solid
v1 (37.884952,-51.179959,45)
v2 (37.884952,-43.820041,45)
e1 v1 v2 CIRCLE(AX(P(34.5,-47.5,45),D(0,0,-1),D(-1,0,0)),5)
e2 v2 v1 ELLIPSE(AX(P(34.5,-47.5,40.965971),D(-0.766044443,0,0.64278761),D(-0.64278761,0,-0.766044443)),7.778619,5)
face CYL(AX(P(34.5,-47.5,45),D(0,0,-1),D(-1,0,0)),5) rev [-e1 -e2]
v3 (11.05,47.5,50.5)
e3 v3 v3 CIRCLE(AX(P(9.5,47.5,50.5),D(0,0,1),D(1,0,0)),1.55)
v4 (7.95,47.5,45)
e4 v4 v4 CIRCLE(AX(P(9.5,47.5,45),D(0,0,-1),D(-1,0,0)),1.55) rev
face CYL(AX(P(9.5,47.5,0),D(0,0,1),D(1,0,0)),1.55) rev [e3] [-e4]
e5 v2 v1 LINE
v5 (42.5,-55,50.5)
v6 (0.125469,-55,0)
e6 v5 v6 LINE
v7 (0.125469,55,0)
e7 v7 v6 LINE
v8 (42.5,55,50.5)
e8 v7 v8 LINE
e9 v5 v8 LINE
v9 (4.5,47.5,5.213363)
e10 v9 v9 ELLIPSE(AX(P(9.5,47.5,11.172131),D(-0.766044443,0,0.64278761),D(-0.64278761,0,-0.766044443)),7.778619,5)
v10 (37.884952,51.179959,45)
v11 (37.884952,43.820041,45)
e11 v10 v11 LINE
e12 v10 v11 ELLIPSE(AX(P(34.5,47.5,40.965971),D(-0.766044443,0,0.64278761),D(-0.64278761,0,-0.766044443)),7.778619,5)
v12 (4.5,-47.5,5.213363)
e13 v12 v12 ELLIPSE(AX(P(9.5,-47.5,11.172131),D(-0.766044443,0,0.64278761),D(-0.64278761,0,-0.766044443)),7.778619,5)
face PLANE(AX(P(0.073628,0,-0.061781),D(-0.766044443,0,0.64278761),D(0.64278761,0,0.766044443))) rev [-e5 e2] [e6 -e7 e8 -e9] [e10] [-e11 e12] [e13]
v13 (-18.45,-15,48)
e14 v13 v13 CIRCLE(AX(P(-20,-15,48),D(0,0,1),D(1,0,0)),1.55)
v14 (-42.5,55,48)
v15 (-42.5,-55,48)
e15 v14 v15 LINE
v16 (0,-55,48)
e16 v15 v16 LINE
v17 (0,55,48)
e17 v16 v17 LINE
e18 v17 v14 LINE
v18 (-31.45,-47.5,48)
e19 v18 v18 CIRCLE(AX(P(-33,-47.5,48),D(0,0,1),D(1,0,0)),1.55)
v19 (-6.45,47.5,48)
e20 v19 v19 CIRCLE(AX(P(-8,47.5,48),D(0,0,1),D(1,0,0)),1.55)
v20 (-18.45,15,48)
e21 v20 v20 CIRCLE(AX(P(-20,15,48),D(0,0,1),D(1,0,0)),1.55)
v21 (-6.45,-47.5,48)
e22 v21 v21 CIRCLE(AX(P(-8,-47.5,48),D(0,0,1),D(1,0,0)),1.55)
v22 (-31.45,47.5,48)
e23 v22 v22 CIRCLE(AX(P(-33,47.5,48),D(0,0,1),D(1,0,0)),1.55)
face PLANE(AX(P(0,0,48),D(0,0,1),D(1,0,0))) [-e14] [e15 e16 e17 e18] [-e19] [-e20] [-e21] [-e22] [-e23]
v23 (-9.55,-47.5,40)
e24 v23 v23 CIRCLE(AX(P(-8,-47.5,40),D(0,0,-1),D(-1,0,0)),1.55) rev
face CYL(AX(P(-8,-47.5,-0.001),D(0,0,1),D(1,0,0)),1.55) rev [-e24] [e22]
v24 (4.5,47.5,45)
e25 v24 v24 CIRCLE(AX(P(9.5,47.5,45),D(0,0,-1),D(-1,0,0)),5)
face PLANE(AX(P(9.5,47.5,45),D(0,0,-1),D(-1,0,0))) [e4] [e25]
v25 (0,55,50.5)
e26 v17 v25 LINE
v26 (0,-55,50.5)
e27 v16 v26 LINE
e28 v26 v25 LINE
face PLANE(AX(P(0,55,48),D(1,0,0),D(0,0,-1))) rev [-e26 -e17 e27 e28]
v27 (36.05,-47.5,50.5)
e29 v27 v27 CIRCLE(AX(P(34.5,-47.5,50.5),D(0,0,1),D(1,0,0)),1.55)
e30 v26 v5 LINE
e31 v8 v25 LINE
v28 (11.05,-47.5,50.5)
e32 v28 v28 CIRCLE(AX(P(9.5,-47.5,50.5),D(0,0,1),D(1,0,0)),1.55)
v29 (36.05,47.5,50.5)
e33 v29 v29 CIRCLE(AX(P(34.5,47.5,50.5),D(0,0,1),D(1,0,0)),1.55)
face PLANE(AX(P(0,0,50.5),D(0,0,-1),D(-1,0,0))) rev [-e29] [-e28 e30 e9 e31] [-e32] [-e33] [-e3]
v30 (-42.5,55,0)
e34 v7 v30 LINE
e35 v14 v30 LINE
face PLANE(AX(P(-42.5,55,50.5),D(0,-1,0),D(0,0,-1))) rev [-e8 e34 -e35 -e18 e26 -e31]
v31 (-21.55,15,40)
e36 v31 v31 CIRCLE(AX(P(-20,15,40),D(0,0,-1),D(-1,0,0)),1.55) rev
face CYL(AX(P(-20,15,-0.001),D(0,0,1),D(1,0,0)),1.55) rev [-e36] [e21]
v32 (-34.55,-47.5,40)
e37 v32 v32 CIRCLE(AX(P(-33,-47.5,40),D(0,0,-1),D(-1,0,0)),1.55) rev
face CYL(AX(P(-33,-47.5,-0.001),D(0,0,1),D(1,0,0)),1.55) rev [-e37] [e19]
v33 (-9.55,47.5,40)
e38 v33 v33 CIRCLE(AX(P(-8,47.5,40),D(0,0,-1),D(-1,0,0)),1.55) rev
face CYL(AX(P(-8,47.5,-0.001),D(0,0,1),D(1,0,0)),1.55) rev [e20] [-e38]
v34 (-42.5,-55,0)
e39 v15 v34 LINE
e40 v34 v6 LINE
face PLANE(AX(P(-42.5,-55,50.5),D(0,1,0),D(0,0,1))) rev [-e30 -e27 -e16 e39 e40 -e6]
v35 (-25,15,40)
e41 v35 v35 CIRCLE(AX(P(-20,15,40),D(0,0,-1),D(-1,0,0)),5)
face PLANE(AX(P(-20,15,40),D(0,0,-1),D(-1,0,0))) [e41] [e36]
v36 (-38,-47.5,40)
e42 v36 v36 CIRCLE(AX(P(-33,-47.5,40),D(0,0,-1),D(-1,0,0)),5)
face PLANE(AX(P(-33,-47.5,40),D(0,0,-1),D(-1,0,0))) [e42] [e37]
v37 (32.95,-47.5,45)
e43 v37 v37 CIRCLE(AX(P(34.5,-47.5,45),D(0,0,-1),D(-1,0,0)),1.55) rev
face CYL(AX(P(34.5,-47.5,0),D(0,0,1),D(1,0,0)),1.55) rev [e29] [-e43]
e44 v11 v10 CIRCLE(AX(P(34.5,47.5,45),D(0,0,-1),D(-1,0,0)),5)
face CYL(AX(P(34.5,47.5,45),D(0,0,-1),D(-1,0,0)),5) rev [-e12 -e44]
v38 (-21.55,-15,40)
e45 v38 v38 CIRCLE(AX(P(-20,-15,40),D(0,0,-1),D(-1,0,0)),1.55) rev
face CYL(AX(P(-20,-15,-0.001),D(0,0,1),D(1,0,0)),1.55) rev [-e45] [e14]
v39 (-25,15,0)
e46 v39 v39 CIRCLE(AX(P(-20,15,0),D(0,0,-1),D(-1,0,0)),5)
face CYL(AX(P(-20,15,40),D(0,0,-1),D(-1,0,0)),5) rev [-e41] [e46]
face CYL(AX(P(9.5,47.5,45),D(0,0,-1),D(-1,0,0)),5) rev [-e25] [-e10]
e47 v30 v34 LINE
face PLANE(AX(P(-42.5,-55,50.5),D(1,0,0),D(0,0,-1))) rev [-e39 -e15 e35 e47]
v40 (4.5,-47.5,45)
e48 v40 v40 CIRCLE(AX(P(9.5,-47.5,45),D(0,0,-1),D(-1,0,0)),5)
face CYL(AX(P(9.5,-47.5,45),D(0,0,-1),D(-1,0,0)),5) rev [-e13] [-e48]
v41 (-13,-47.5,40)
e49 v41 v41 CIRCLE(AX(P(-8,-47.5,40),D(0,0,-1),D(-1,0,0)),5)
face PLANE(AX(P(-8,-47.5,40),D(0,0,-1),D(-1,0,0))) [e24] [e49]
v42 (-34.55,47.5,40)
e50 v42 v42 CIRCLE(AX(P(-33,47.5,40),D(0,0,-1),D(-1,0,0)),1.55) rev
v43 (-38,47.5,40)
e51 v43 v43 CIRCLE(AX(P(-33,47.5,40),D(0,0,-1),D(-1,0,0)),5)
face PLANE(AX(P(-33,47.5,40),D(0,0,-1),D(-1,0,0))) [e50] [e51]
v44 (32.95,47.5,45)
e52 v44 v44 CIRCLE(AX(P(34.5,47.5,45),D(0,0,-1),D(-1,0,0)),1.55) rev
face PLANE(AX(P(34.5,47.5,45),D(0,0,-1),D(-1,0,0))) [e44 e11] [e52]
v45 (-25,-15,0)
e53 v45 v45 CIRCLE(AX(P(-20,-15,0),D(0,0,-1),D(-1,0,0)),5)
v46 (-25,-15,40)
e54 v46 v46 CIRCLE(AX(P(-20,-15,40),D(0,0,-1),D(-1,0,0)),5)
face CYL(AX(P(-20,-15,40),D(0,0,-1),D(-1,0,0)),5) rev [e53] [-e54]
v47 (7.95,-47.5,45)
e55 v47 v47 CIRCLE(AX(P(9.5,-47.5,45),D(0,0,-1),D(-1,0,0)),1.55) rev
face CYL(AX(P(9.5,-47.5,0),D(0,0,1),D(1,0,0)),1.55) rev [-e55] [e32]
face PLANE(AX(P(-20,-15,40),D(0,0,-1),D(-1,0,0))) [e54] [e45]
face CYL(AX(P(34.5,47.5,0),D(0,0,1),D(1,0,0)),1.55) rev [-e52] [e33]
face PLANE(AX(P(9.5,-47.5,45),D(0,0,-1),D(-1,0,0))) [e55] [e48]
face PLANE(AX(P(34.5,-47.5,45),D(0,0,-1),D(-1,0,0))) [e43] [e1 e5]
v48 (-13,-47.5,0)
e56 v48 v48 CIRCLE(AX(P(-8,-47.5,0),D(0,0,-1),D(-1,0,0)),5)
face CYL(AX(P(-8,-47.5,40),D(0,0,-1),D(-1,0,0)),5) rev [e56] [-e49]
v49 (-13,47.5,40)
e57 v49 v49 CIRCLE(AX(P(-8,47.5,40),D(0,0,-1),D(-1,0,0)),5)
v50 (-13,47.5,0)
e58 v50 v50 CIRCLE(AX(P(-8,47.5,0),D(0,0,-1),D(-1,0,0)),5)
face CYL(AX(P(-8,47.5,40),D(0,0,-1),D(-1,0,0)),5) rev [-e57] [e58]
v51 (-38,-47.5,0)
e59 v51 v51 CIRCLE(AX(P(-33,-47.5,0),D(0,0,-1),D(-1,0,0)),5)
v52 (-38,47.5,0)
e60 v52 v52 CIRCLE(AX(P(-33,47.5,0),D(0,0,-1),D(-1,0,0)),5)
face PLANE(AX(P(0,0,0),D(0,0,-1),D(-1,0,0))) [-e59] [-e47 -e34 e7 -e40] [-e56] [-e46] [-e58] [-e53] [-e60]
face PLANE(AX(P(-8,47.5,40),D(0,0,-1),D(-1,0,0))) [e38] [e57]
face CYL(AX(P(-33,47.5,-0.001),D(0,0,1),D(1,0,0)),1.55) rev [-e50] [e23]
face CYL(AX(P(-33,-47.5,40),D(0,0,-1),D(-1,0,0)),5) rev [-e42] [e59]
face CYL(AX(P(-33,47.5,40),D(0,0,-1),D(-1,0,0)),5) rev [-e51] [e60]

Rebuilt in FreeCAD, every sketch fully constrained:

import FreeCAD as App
import Part
import Sketcher
Q = App.Units.Quantity

doc = App.newDocument("Part")
params = doc.addObject("Spreadsheet::Sheet", "Params")
for row, (alias, value) in enumerate([
    ("sketch1_width", "85 mm"),
    ("sketch1_height", "110 mm"),
    ("pad1_length", "50.5 mm"),
    ("sketch2_height", "110 mm"),
    ("sketch2_width", "42.5 mm"),
    ("pocket1_length", "2.5 mm"),
    ("sketch3_width", "130 mm"),
    ("pocket2_length", "32.460774 mm"),
    ("sketch4_diameter", "3.1 mm"),
    ("sketch5_diameter", "3.1 mm"),
    ("sketch6_diameter", "3.1 mm"),
    ("sketch7_diameter", "3.1 mm"),
    ("sketch8_diameter", "3.1 mm"),
    ("sketch9_diameter", "3.1 mm"),
    ("sketch10_diameter", "3.1 mm"),
    ("sketch11_diameter", "10 mm"),
    ("pocket10_length", "55 mm"),
    ("sketch12_diameter", "10 mm"),
    ("pocket11_length", "40 mm"),
], start=1):
    params.set(f"A{row}", alias)
    params.set(f"B{row}", "=" + value)
    params.setAlias(f"B{row}", alias)

body = doc.addObject("PartDesign::Body", "Body")

# Sketch on XY plane
sketch1 = body.newObject("Sketcher::SketchObject", "Sketch")
sketch1.AttachmentSupport = (doc.getObject("XY_Plane"), [""])
sketch1.MapMode = "FlatFace"
sketch1.addGeometry([
    Part.LineSegment(App.Vector(-42.5, 55, 0), App.Vector(-42.5, -55, 0)),
    Part.LineSegment(App.Vector(-42.5, -55, 0), App.Vector(42.5, -55, 0)),
    Part.LineSegment(App.Vector(42.5, -55, 0), App.Vector(42.5, 55, 0)),
    Part.LineSegment(App.Vector(42.5, 55, 0), App.Vector(-42.5, 55, 0)),
], False)
sketch1.addConstraint([
    Sketcher.Constraint("Coincident", 0, 2, 1, 1),
    Sketcher.Constraint("Coincident", 1, 2, 2, 1),
    Sketcher.Constraint("Coincident", 2, 2, 3, 1),
    Sketcher.Constraint("Coincident", 3, 2, 0, 1),
    Sketcher.Constraint("Vertical", 0),
    Sketcher.Constraint("Horizontal", 1),
    Sketcher.Constraint("Vertical", 2),
    Sketcher.Constraint("Horizontal", 3),
    Sketcher.Constraint("Symmetric", 0, 2, 2, 2, -1, 1),
    Sketcher.Constraint("DistanceX", 1, 1, 1, 2, Q("85 mm")),
    Sketcher.Constraint("DistanceY", 0, 2, 0, 1, Q("110 mm")),
])
sketch1.setExpression("Constraints[9]", "Params.sketch1_width")
sketch1.setExpression("Constraints[10]", "Params.sketch1_height")
pad1 = body.newObject("PartDesign::Pad", "Pad")
pad1.Profile = sketch1
pad1.setExpression("Length", "Params.pad1_length")

# Sketch on XY plane
sketch2 = body.newObject("Sketcher::SketchObject", "Sketch001")
sketch2.AttachmentSupport = (doc.getObject("XY_Plane"), [""])
sketch2.MapMode = "FlatFace"
sketch2.AttachmentOffset = App.Placement(App.Vector(0, 0, 50.5), App.Rotation())
sketch2.addGeometry([
    Part.LineSegment(App.Vector(-42.5, 55, 0), App.Vector(-42.5, -55, 0)),
    Part.LineSegment(App.Vector(-42.5, -55, 0), App.Vector(0, -55, 0)),
    Part.LineSegment(App.Vector(0, -55, 0), App.Vector(0, 55, 0)),
    Part.LineSegment(App.Vector(0, 55, 0), App.Vector(-42.5, 55, 0)),
], False)
sketch2.addConstraint([
    Sketcher.Constraint("Coincident", 0, 2, 1, 1),
    Sketcher.Constraint("Coincident", 1, 2, 2, 1),
    Sketcher.Constraint("Coincident", 2, 2, 3, 1),
    Sketcher.Constraint("Coincident", 3, 2, 0, 1),
    Sketcher.Constraint("Vertical", 0),
    Sketcher.Constraint("Horizontal", 1),
    Sketcher.Constraint("Vertical", 2),
    Sketcher.Constraint("Horizontal", 3),
    Sketcher.Constraint("Symmetric", 1, 2, 2, 2, -1, 1),
    Sketcher.Constraint("DistanceY", 0, 2, 0, 1, Q("110 mm")),
    Sketcher.Constraint("DistanceX", 1, 1, 1, 2, Q("42.5 mm")),
])
sketch2.setExpression("Constraints[9]", "Params.sketch2_height")
sketch2.setExpression("Constraints[10]", "Params.sketch2_width")
pocket1 = body.newObject("PartDesign::Pocket", "Pocket")
pocket1.Profile = sketch2
pocket1.setExpression("Length", "Params.pocket1_length")

# Sketch on an angled plane
sketch3 = body.newObject("Sketcher::SketchObject", "Sketch002")
sketch3.Placement = App.Placement(App.Vector(0.073628, 0, -0.061781), App.Rotation(App.Vector(0, 1, 0), App.Vector(-0.64278761, 0, -0.766044443), App.Vector(-0.766044443, 0, 0.64278761), "ZXY"))
sketch3.addGeometry([
    Part.LineSegment(App.Vector(-66.816322, 60.501101, 0), App.Vector(-66.816322, -69.4989, 0)),
    Part.LineSegment(App.Vector(-66.816322, -69.4989, 0), App.Vector(63.183678, -69.4989, 0)),
    Part.LineSegment(App.Vector(63.183678, -69.4989, 0), App.Vector(63.183678, 60.501101, 0)),
    Part.LineSegment(App.Vector(63.183678, 60.501101, 0), App.Vector(-66.816322, 60.501101, 0)),
], False)
sketch3.addConstraint([
    Sketcher.Constraint("Coincident", 0, 2, 1, 1),
    Sketcher.Constraint("Coincident", 1, 2, 2, 1),
    Sketcher.Constraint("Coincident", 2, 2, 3, 1),
    Sketcher.Constraint("Coincident", 3, 2, 0, 1),
    Sketcher.Constraint("Vertical", 0),
    Sketcher.Constraint("Horizontal", 1),
    Sketcher.Constraint("Vertical", 2),
    Sketcher.Constraint("Horizontal", 3),
    Sketcher.Constraint("Equal", 3, 0),
    Sketcher.Constraint("DistanceX", 1, 1, 1, 2, Q("130 mm")),
    Sketcher.Constraint("DistanceY", 0, 2, -1, 1, Q("69.4989 mm")),
    Sketcher.Constraint("DistanceX", 0, 2, -1, 1, Q("66.816322 mm")),
])
sketch3.setExpression("Constraints[9]", "Params.sketch3_width")
pocket2 = body.newObject("PartDesign::Pocket", "Pocket001")
pocket2.Profile = sketch3
pocket2.setExpression("Length", "Params.pocket2_length")

# Sketch on XY plane
sketch4 = body.newObject("Sketcher::SketchObject", "Sketch003")
sketch4.AttachmentSupport = (doc.getObject("XY_Plane"), [""])
sketch4.MapMode = "FlatFace"
sketch4.AttachmentOffset = App.Placement(App.Vector(0, 0, 48), App.Rotation())
sketch4.addGeometry(Part.Circle(App.Vector(-8, 47.5, 0), App.Vector(0, 0, 1), 1.55), False)
sketch4.addConstraint([
    Sketcher.Constraint("Diameter", 0, Q("3.1 mm")),
    Sketcher.Constraint("DistanceX", 0, 3, -1, 1, Q("8 mm")),
    Sketcher.Constraint("DistanceY", -1, 1, 0, 3, Q("47.5 mm")),
])
sketch4.setExpression("Constraints[0]", "Params.sketch4_diameter")
pocket3 = body.newObject("PartDesign::Pocket", "Pocket002")
pocket3.Profile = sketch4
pocket3.Type = "UpToFirst"

# Sketch on XY plane
sketch5 = body.newObject("Sketcher::SketchObject", "Sketch004")
sketch5.AttachmentSupport = (doc.getObject("XY_Plane"), [""])
sketch5.MapMode = "FlatFace"
sketch5.AttachmentOffset = App.Placement(App.Vector(0, 0, 48), App.Rotation())
sketch5.addGeometry(Part.Circle(App.Vector(-33, 47.5, 0), App.Vector(0, 0, 1), 1.55), False)
sketch5.addConstraint([
    Sketcher.Constraint("Diameter", 0, Q("3.1 mm")),
    Sketcher.Constraint("DistanceX", 0, 3, -1, 1, Q("33 mm")),
    Sketcher.Constraint("DistanceY", -1, 1, 0, 3, Q("47.5 mm")),
])
sketch5.setExpression("Constraints[0]", "Params.sketch5_diameter")
pocket4 = body.newObject("PartDesign::Pocket", "Pocket003")
pocket4.Profile = sketch5
pocket4.Type = "UpToFirst"

# Sketch on XY plane
sketch6 = body.newObject("Sketcher::SketchObject", "Sketch005")
sketch6.AttachmentSupport = (doc.getObject("XY_Plane"), [""])
sketch6.MapMode = "FlatFace"
sketch6.AttachmentOffset = App.Placement(App.Vector(0, 0, 48), App.Rotation())
sketch6.addGeometry(Part.Circle(App.Vector(-20, 15, 0), App.Vector(0, 0, 1), 1.55), False)
sketch6.addConstraint([
    Sketcher.Constraint("Diameter", 0, Q("3.1 mm")),
    Sketcher.Constraint("DistanceX", 0, 3, -1, 1, Q("20 mm")),
    Sketcher.Constraint("DistanceY", -1, 1, 0, 3, Q("15 mm")),
])
sketch6.setExpression("Constraints[0]", "Params.sketch6_diameter")
pocket5 = body.newObject("PartDesign::Pocket", "Pocket004")
pocket5.Profile = sketch6
pocket5.Type = "UpToFirst"

# Sketch on XY plane
sketch7 = body.newObject("Sketcher::SketchObject", "Sketch006")
sketch7.AttachmentSupport = (doc.getObject("XY_Plane"), [""])
sketch7.MapMode = "FlatFace"
sketch7.AttachmentOffset = App.Placement(App.Vector(0, 0, 48), App.Rotation())
sketch7.addGeometry(Part.Circle(App.Vector(-20, -15, 0), App.Vector(0, 0, 1), 1.55), False)
sketch7.addConstraint([
    Sketcher.Constraint("Diameter", 0, Q("3.1 mm")),
    Sketcher.Constraint("DistanceX", 0, 3, -1, 1, Q("20 mm")),
    Sketcher.Constraint("DistanceY", 0, 3, -1, 1, Q("15 mm")),
])
sketch7.setExpression("Constraints[0]", "Params.sketch7_diameter")
pocket6 = body.newObject("PartDesign::Pocket", "Pocket005")
pocket6.Profile = sketch7
pocket6.Type = "UpToFirst"

# Sketch on XY plane
sketch8 = body.newObject("Sketcher::SketchObject", "Sketch007")
sketch8.AttachmentSupport = (doc.getObject("XY_Plane"), [""])
sketch8.MapMode = "FlatFace"
sketch8.AttachmentOffset = App.Placement(App.Vector(0, 0, 48), App.Rotation())
sketch8.addGeometry(Part.Circle(App.Vector(-8, -47.5, 0), App.Vector(0, 0, 1), 1.55), False)
sketch8.addConstraint([
    Sketcher.Constraint("Diameter", 0, Q("3.1 mm")),
    Sketcher.Constraint("DistanceX", 0, 3, -1, 1, Q("8 mm")),
    Sketcher.Constraint("DistanceY", 0, 3, -1, 1, Q("47.5 mm")),
])
sketch8.setExpression("Constraints[0]", "Params.sketch8_diameter")
pocket7 = body.newObject("PartDesign::Pocket", "Pocket006")
pocket7.Profile = sketch8
pocket7.Type = "UpToFirst"

# Sketch on XY plane
sketch9 = body.newObject("Sketcher::SketchObject", "Sketch008")
sketch9.AttachmentSupport = (doc.getObject("XY_Plane"), [""])
sketch9.MapMode = "FlatFace"
sketch9.AttachmentOffset = App.Placement(App.Vector(0, 0, 48), App.Rotation())
sketch9.addGeometry(Part.Circle(App.Vector(-33, -47.5, 0), App.Vector(0, 0, 1), 1.55), False)
sketch9.addConstraint([
    Sketcher.Constraint("Diameter", 0, Q("3.1 mm")),
    Sketcher.Constraint("DistanceX", 0, 3, -1, 1, Q("33 mm")),
    Sketcher.Constraint("DistanceY", 0, 3, -1, 1, Q("47.5 mm")),
])
sketch9.setExpression("Constraints[0]", "Params.sketch9_diameter")
pocket8 = body.newObject("PartDesign::Pocket", "Pocket007")
pocket8.Profile = sketch9
pocket8.Type = "UpToFirst"

# Sketch on XY plane
sketch10 = body.newObject("Sketcher::SketchObject", "Sketch009")
sketch10.AttachmentSupport = (doc.getObject("XY_Plane"), [""])
sketch10.MapMode = "FlatFace"
sketch10.AttachmentOffset = App.Placement(App.Vector(0, 0, 50.5), App.Rotation())
sketch10.addGeometry([
    Part.Circle(App.Vector(9.5, 47.5, 0), App.Vector(0, 0, 1), 1.55),
    Part.Circle(App.Vector(34.5, 47.5, 0), App.Vector(0, 0, 1), 1.55),
    Part.Circle(App.Vector(34.5, -47.5, 0), App.Vector(0, 0, 1), 1.55),
    Part.Circle(App.Vector(9.5, -47.5, 0), App.Vector(0, 0, 1), 1.55),
], False)
sketch10.addConstraint([
    Sketcher.Constraint("Equal", 0, 1),
    Sketcher.Constraint("Equal", 1, 2),
    Sketcher.Constraint("Equal", 2, 3),
    Sketcher.Constraint("Symmetric", 1, 3, 2, 3, -1),
    Sketcher.Constraint("Symmetric", 0, 3, 3, 3, -1),
    Sketcher.Constraint("Horizontal", 0, 3, 1, 3),
    Sketcher.Constraint("Diameter", 0, Q("3.1 mm")),
    Sketcher.Constraint("DistanceX", 0, 3, 1, 3, Q("25 mm")),
    Sketcher.Constraint("DistanceY", 2, 3, 1, 3, Q("95 mm")),
    Sketcher.Constraint("DistanceX", -1, 1, 0, 3, Q("9.5 mm")),
])
sketch10.setExpression("Constraints[6]", "Params.sketch10_diameter")
pocket9 = body.newObject("PartDesign::Pocket", "Pocket008")
pocket9.Profile = sketch10
pocket9.Type = "ThroughAll"

# Sketch on XY plane
sketch11 = body.newObject("Sketcher::SketchObject", "Sketch010")
sketch11.AttachmentSupport = (doc.getObject("XY_Plane"), [""])
sketch11.MapMode = "FlatFace"
sketch11.AttachmentOffset = App.Placement(App.Vector(0, 0, -10), App.Rotation())
sketch11.addGeometry([
    Part.Circle(App.Vector(34.5, 47.5, 0), App.Vector(0, 0, 1), 5),
    Part.Circle(App.Vector(9.5, 47.5, 0), App.Vector(0, 0, 1), 5),
    Part.Circle(App.Vector(34.5, -47.5, 0), App.Vector(0, 0, 1), 5),
    Part.Circle(App.Vector(9.5, -47.5, 0), App.Vector(0, 0, 1), 5),
], False)
sketch11.addConstraint([
    Sketcher.Constraint("Equal", 0, 1),
    Sketcher.Constraint("Equal", 1, 2),
    Sketcher.Constraint("Equal", 2, 3),
    Sketcher.Constraint("Symmetric", 0, 3, 2, 3, -1),
    Sketcher.Constraint("Symmetric", 1, 3, 3, 3, -1),
    Sketcher.Constraint("Horizontal", 0, 3, 1, 3),
    Sketcher.Constraint("Diameter", 0, Q("10 mm")),
    Sketcher.Constraint("DistanceX", 1, 3, 0, 3, Q("25 mm")),
    Sketcher.Constraint("DistanceY", 2, 3, 0, 3, Q("95 mm")),
    Sketcher.Constraint("DistanceX", -1, 1, 0, 3, Q("34.5 mm")),
])
sketch11.setExpression("Constraints[6]", "Params.sketch11_diameter")
pocket10 = body.newObject("PartDesign::Pocket", "Pocket009")
pocket10.Profile = sketch11
pocket10.setExpression("Length", "Params.pocket10_length")
pocket10.Reversed = True

# Sketch on XY plane
sketch12 = body.newObject("Sketcher::SketchObject", "Sketch011")
sketch12.AttachmentSupport = (doc.getObject("XY_Plane"), [""])
sketch12.MapMode = "FlatFace"
sketch12.addGeometry([
    Part.Circle(App.Vector(-8, 47.5, 0), App.Vector(0, 0, 1), 5),  # 0
    Part.Circle(App.Vector(-33, 47.5, 0), App.Vector(0, 0, 1), 5),  # 1
    Part.Circle(App.Vector(-33, -47.5, 0), App.Vector(0, 0, 1), 5),  # 2
    Part.Circle(App.Vector(-8, -47.5, 0), App.Vector(0, 0, 1), 5),  # 3
    Part.Circle(App.Vector(-20, 15, 0), App.Vector(0, 0, 1), 5),  # 4
    Part.Circle(App.Vector(-20, -15, 0), App.Vector(0, 0, 1), 5),  # 5
], False)
sketch12.addConstraint([
    Sketcher.Constraint("Equal", 0, 1),
    Sketcher.Constraint("Equal", 1, 2),
    Sketcher.Constraint("Equal", 2, 3),
    Sketcher.Constraint("Equal", 3, 4),
    Sketcher.Constraint("Equal", 4, 5),
    Sketcher.Constraint("Symmetric", 1, 3, 2, 3, -1),
    Sketcher.Constraint("Symmetric", 0, 3, 3, 3, -1),
    Sketcher.Constraint("Symmetric", 4, 3, 5, 3, -1),
    Sketcher.Constraint("Horizontal", 0, 3, 1, 3),
    Sketcher.Constraint("Diameter", 0, Q("10 mm")),
    Sketcher.Constraint("DistanceX", 0, 3, -1, 1, Q("8 mm")),
    Sketcher.Constraint("DistanceX", 1, 3, -1, 1, Q("33 mm")),
    Sketcher.Constraint("DistanceX", 4, 3, -1, 1, Q("20 mm")),
    Sketcher.Constraint("DistanceY", -1, 1, 4, 3, Q("15 mm")),
    Sketcher.Constraint("DistanceY", 2, 3, 1, 3, Q("95 mm")),
])
sketch12.setExpression("Constraints[9]", "Params.sketch12_diameter")
pocket11 = body.newObject("PartDesign::Pocket", "Pocket010")
pocket11.Profile = sketch12
pocket11.setExpression("Length", "Params.pocket11_length")
pocket11.Reversed = True

doc.recompute()
